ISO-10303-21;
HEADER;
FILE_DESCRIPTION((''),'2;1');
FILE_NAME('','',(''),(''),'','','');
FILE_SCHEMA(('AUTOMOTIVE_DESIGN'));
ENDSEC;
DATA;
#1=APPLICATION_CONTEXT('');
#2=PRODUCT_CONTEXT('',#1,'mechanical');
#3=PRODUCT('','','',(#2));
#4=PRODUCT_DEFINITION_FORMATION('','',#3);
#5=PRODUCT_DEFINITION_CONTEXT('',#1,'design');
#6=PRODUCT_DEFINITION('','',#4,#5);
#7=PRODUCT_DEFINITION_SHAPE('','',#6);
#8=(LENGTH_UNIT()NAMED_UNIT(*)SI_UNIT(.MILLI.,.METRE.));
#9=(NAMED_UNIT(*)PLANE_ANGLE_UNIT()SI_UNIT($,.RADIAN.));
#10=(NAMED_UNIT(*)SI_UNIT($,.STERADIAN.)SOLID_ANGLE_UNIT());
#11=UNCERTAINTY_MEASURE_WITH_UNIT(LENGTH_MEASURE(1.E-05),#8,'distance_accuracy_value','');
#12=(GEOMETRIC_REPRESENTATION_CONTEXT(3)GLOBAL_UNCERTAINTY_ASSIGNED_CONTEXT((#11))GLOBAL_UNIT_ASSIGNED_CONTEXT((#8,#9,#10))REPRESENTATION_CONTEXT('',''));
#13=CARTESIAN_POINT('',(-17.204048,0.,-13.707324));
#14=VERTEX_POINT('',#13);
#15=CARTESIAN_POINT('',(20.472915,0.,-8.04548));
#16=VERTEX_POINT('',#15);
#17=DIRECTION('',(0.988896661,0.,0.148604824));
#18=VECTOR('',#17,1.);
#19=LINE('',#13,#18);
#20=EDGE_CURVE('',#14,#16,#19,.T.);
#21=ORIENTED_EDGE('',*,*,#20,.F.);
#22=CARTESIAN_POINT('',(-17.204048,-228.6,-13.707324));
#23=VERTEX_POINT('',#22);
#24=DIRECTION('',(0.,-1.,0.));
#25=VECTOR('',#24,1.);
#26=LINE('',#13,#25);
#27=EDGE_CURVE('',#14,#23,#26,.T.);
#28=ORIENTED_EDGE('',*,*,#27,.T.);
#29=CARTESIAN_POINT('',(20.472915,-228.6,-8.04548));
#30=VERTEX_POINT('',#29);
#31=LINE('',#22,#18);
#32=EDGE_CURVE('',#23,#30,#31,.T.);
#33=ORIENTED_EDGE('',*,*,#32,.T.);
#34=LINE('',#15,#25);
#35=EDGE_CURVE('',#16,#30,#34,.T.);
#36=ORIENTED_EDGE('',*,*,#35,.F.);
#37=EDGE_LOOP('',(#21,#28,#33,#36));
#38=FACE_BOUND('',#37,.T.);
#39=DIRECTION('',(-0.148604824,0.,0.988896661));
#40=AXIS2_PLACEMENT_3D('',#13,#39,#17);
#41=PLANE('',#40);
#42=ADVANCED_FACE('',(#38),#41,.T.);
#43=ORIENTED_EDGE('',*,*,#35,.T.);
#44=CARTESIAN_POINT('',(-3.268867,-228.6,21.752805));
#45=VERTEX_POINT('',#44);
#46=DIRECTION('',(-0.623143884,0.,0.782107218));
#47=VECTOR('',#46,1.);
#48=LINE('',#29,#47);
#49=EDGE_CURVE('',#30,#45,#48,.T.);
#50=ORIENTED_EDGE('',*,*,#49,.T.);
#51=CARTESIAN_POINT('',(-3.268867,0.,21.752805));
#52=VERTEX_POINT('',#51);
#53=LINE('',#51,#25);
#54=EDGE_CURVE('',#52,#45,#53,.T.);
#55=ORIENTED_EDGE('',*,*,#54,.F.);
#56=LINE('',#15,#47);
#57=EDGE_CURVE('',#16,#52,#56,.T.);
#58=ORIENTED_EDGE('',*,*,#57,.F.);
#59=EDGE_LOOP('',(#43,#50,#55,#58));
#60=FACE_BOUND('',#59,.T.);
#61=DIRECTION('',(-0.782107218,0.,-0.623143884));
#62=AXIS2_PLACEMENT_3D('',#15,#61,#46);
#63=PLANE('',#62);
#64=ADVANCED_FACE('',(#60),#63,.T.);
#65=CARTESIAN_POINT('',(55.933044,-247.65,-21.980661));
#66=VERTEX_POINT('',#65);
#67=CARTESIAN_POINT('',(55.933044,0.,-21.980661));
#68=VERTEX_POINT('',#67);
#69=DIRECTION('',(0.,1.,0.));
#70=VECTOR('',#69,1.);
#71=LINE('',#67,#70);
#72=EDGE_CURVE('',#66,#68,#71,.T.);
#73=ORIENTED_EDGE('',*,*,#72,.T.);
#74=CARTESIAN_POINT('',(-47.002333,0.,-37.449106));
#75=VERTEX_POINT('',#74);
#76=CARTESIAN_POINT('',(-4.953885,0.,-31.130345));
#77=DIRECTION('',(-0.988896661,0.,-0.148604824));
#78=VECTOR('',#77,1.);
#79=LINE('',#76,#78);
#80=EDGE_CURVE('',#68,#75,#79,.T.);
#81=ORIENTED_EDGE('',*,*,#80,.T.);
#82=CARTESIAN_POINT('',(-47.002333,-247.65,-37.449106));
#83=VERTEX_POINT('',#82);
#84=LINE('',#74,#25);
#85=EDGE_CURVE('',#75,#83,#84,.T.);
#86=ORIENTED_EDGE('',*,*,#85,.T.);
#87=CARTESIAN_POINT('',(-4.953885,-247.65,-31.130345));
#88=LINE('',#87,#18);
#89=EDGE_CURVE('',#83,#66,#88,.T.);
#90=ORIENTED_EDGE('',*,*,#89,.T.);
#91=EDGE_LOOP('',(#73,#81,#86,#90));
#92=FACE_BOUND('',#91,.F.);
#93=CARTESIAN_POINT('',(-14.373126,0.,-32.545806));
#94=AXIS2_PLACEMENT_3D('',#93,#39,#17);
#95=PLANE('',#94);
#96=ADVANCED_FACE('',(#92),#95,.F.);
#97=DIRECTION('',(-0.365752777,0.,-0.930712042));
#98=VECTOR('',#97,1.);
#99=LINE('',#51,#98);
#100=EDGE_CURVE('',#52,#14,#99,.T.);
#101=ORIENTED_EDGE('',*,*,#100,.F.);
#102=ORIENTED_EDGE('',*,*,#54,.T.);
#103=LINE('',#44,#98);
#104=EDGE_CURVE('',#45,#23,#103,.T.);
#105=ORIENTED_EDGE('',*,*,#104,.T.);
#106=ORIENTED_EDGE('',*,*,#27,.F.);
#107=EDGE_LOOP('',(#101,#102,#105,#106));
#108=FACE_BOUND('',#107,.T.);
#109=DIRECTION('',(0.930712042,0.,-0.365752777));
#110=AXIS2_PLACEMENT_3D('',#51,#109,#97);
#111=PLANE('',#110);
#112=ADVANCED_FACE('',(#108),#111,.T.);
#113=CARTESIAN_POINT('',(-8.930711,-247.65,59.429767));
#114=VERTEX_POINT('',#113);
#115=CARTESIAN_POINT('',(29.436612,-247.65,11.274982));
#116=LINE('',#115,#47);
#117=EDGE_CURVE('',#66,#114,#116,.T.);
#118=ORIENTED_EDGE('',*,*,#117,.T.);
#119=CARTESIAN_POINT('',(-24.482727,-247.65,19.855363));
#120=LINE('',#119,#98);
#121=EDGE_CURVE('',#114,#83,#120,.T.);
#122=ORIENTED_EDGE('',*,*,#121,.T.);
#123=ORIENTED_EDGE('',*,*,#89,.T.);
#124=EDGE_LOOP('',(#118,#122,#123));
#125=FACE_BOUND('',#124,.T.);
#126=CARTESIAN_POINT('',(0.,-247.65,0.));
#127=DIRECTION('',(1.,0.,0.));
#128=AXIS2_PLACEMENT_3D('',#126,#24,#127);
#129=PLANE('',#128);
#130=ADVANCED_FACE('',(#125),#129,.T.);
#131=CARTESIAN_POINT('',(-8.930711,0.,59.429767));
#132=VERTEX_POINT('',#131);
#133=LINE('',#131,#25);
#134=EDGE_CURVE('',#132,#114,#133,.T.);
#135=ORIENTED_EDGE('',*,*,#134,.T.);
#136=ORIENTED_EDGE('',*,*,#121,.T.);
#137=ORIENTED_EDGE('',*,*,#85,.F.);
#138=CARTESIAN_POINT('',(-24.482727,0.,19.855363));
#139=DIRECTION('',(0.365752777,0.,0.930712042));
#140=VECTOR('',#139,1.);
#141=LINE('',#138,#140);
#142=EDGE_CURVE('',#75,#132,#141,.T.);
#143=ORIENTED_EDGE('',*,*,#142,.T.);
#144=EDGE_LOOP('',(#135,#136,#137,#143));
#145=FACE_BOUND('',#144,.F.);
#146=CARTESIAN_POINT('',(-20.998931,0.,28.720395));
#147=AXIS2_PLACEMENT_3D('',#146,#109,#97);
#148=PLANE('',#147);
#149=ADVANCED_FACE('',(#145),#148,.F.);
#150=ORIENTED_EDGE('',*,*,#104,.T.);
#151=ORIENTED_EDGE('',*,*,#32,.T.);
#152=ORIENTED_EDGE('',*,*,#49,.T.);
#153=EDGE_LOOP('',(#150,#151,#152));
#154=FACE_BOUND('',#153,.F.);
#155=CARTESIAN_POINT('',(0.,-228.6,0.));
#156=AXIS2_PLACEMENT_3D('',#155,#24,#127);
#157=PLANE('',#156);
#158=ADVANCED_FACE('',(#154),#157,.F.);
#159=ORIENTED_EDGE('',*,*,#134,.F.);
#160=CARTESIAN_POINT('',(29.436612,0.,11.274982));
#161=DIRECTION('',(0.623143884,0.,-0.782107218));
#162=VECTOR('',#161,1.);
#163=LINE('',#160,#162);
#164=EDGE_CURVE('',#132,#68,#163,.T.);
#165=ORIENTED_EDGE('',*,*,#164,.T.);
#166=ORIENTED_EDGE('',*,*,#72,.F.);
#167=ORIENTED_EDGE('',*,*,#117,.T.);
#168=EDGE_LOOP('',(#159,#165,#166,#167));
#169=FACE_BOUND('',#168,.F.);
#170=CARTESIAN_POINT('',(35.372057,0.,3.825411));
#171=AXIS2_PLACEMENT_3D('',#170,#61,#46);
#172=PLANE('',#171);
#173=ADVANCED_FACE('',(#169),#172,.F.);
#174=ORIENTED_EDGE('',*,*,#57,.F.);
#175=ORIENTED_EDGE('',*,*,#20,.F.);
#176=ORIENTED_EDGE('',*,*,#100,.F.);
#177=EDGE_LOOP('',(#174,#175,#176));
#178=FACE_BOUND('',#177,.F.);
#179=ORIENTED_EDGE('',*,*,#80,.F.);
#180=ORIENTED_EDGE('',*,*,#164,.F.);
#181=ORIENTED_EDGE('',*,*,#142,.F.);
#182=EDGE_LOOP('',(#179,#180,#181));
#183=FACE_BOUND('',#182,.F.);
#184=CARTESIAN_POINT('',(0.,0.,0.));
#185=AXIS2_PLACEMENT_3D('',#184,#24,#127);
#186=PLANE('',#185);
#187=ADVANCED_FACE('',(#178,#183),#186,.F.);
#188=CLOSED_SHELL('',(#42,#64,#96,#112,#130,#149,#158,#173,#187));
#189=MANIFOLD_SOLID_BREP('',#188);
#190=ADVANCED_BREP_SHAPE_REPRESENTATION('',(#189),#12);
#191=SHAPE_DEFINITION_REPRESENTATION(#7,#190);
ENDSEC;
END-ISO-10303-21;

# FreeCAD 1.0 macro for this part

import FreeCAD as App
import Part
import Sketcher

V = App.Vector
Q = App.Units.Quantity


def faces_at(feature, points):
    """Names of the faces that lie closest to the given points."""
    faces = feature.Shape.Faces
    near = lambda p: min(range(len(faces)), key=lambda i: faces[i].distToShape(Part.Vertex(*p))[0])
    return sorted({f"Face{near(p) + 1}" for p in points})

doc = App.newDocument("Part")
body = doc.addObject("PartDesign::Body", "Body")

sketch1 = body.newObject("Sketcher::SketchObject", "Sketch")
sketch1.AttachmentSupport = (doc.getObject("XZ_Plane"), [""])
sketch1.MapMode = "FlatFace"
sketch1.addGeometry(Part.LineSegment(V(20, -8, 0), V(-3, 22, 0)), False)
sketch1.addGeometry(Part.LineSegment(V(-3, 22, 0), V(-17, -14, 0)), False)
sketch1.addGeometry(Part.LineSegment(V(-17, -14, 0), V(20, -8, 0)), False)
sketch1.addConstraint(Sketcher.Constraint("Coincident", 0, 2, 1, 1))
sketch1.addConstraint(Sketcher.Constraint("Coincident", 1, 2, 2, 1))
sketch1.addConstraint(Sketcher.Constraint("Coincident", 2, 2, 0, 1))
sketch1.addConstraint(Sketcher.Constraint("Equal", 0, 1))
sketch1.addConstraint(Sketcher.Constraint("Equal", 1, 2))
sketch1.addConstraint(Sketcher.Constraint("Distance", 0, Q("1.5 in")))
sketch1.addConstraint(Sketcher.Constraint("DistanceY", 2, 2, -1, 1, Q("8.04548 mm")))
sketch1.addConstraint(Sketcher.Constraint("DistanceX", 1, 2, 0, 2, Q("13.935181 mm")))
sketch1.addConstraint(Sketcher.Constraint("DistanceX", 0, 2, -1, 1, Q("3.268867 mm")))
pad1 = body.newObject("PartDesign::Pad", "Pad")
pad1.Profile = sketch1
pad1.Length = Q("9 in")
doc.recompute()

thickness = body.newObject("PartDesign::Thickness", "Thickness")
thickness.Base = (pad1, faces_at(pad1, [(1.634, 0, 4.023)]))
thickness.Value = Q("0.75 in")
thickness.Reversed = False
thickness.Join = "Intersection"

doc.recompute()
